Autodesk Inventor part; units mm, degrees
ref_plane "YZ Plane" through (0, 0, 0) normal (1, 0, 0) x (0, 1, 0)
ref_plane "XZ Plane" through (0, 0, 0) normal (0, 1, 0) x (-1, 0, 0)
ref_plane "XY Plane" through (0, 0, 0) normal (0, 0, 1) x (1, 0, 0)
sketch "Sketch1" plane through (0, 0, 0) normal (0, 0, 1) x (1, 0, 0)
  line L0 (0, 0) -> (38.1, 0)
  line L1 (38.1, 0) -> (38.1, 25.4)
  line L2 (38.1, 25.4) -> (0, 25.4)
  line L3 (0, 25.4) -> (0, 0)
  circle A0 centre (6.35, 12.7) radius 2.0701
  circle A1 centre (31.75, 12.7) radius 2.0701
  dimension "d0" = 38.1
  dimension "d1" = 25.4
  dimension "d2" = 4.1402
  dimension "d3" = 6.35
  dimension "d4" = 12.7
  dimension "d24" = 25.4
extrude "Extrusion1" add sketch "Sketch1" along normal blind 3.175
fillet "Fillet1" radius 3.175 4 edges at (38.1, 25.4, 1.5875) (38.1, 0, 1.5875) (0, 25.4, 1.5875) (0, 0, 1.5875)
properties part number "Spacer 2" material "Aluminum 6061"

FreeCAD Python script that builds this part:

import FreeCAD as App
import Part
import Sketcher
from FreeCAD import Vector
Q = App.Units.Quantity


def edges_at(feature, points):
    """Names of the edges that pass closest to the given points."""
    edges = feature.Shape.Edges
    near = lambda p: min(range(len(edges)), key=lambda i: edges[i].distToShape(Part.Vertex(*p))[0])
    return sorted({f"Edge{near(p) + 1}" for p in points})

doc = App.newDocument("Part")
body = doc.addObject("PartDesign::Body", "Body")

# Sketch on XY plane
sketch1 = body.newObject("Sketcher::SketchObject", "Sketch")
sketch1.AttachmentSupport = (doc.getObject("XY_Plane"), [""])
sketch1.MapMode = "FlatFace"
sketch1.addGeometry([
    Part.LineSegment(Vector(0, 25.4, 0), Vector(0, 0, 0)),  # 0
    Part.LineSegment(Vector(0, 0, 0), Vector(38.1, 0, 0)),  # 1
    Part.LineSegment(Vector(38.1, 0, 0), Vector(38.1, 25.4, 0)),  # 2
    Part.LineSegment(Vector(38.1, 25.4, 0), Vector(0, 25.4, 0)),  # 3
    Part.Circle(Vector(6.35, 12.7, 0), Vector(0, 0, 1), 2.0701),  # 4
    Part.Circle(Vector(31.75, 12.7, 0), Vector(0, 0, 1), 2.0701),  # 5
], False)
sketch1.addConstraint([
    Sketcher.Constraint("Coincident", 0, 2, 1, 1),
    Sketcher.Constraint("Coincident", 1, 2, 2, 1),
    Sketcher.Constraint("Coincident", 2, 2, 3, 1),
    Sketcher.Constraint("Coincident", 3, 2, 0, 1),
    Sketcher.Constraint("Vertical", 0),
    Sketcher.Constraint("Horizontal", 1),
    Sketcher.Constraint("Vertical", 2),
    Sketcher.Constraint("Horizontal", 3),
    Sketcher.Constraint("Coincident", 0, 2, -1, 1),
    Sketcher.Constraint("Equal", 4, 5),
    Sketcher.Constraint("Horizontal", 4, 3, 5, 3),
    Sketcher.Constraint("DistanceY", 0, 2, 0, 1, Q("1 in")),
    Sketcher.Constraint("Diameter", 4, Q("0.163 in")),
    Sketcher.Constraint("DistanceX", 1, 1, 1, 2, Q("1.5 in")),
    Sketcher.Constraint("DistanceX", 4, 3, 5, 3, Q("1 in")),
    Sketcher.Constraint("DistanceY", -1, 1, 4, 3, Q("0.5 in")),
    Sketcher.Constraint("DistanceX", -1, 1, 4, 3, Q("0.25 in")),
])
pad1 = body.newObject("PartDesign::Pad", "Pad")
pad1.Profile = sketch1
pad1.Length = Q("0.125 in")
doc.recompute()

fillet = body.newObject("PartDesign::Fillet", "Fillet")
fillet.Base = (pad1, edges_at(pad1, [
    (38.1, 25.4, 1.587),
    (38.1, 0, 1.587),
    (0, 25.4, 1.587),
    (0, 0, 1.587),
]))
fillet.Radius = Q("0.125 in")

doc.recompute()
